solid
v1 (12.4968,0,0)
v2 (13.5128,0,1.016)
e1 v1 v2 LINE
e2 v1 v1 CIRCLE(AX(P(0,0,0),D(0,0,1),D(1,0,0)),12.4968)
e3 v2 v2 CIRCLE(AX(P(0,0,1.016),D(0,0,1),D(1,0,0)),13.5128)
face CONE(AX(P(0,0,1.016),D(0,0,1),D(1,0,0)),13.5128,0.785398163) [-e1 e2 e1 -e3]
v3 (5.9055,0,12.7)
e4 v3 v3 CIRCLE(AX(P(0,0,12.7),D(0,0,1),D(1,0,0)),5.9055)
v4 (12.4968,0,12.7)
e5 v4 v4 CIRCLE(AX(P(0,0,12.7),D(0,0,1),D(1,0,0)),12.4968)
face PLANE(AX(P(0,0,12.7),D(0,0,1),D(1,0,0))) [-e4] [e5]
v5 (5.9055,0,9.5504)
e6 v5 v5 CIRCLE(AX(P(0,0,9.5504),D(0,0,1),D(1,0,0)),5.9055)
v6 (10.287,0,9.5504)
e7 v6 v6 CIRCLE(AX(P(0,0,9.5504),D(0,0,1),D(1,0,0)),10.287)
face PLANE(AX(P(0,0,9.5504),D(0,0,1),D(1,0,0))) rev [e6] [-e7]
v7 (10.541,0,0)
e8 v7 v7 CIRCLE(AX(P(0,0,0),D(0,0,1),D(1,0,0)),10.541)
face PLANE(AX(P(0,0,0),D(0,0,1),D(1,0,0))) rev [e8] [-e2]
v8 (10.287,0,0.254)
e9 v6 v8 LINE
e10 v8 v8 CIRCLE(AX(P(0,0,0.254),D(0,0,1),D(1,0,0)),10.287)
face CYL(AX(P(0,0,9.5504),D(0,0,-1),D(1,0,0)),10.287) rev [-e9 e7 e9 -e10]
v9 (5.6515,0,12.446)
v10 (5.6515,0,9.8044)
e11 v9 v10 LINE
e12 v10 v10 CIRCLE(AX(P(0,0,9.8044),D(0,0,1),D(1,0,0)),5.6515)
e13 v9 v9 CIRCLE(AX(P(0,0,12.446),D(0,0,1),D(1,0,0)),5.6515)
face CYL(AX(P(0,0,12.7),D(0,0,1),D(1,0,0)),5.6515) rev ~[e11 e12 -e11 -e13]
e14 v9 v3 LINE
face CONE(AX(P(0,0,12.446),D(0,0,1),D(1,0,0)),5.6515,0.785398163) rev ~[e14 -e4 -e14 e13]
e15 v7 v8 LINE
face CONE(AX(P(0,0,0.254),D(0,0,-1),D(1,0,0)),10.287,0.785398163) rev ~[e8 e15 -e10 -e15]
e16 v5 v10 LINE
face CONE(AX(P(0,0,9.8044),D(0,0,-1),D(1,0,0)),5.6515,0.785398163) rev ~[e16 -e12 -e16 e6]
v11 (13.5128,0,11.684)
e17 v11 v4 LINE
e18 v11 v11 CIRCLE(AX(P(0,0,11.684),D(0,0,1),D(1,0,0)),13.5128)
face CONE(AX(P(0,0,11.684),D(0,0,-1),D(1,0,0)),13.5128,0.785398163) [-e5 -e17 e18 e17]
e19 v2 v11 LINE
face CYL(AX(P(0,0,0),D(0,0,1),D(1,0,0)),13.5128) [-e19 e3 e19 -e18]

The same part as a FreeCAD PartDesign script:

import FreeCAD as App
import Part
import Sketcher
Q = App.Units.Quantity


def edges_at(feature, points):
    """Names of the edges that pass closest to the given points."""
    edges = feature.Shape.Edges
    near = lambda p: min(range(len(edges)), key=lambda i: edges[i].distToShape(Part.Vertex(*p))[0])
    return sorted({f"Edge{near(p) + 1}" for p in points})

doc = App.newDocument("Part")
body = doc.addObject("PartDesign::Body", "Body")

# Sketch on XZ plane
sketch1 = doc.addObject("Sketcher::SketchObject", "Sketch")
body.addObject(sketch1)
sketch1.AttachmentSupport = (doc.XZ_Plane, [""])
sketch1.MapMode = "FlatFace"
sketch1.addGeometry(Part.LineSegment(App.Vector(10.287, 9.5504, 0), App.Vector(10.287, 0, 0)), False)
sketch1.addGeometry(Part.LineSegment(App.Vector(10.287, 0, 0), App.Vector(13.5128, 0, 0)), False)
sketch1.addGeometry(Part.LineSegment(App.Vector(13.5128, 0, 0), App.Vector(13.5128, 12.7, 0)), False)
sketch1.addGeometry(Part.LineSegment(App.Vector(13.5128, 12.7, 0), App.Vector(0, 12.7, 0)), False)
sketch1.addGeometry(Part.LineSegment(App.Vector(0, 12.7, 0), App.Vector(0, 9.5504, 0)), False)
sketch1.addGeometry(Part.LineSegment(App.Vector(0, 9.5504, 0), App.Vector(10.287, 9.5504, 0)), False)
sketch1.addConstraint(Sketcher.Constraint("Coincident", 0, 2, 1, 1))
sketch1.addConstraint(Sketcher.Constraint("Coincident", 1, 2, 2, 1))
sketch1.addConstraint(Sketcher.Constraint("Coincident", 2, 2, 3, 1))
sketch1.addConstraint(Sketcher.Constraint("Coincident", 3, 2, 4, 1))
sketch1.addConstraint(Sketcher.Constraint("Coincident", 4, 2, 5, 1))
sketch1.addConstraint(Sketcher.Constraint("Coincident", 5, 2, 0, 1))
sketch1.addConstraint(Sketcher.Constraint("Vertical", 0))
sketch1.addConstraint(Sketcher.Constraint("Horizontal", 1))
sketch1.addConstraint(Sketcher.Constraint("Vertical", 2))
sketch1.addConstraint(Sketcher.Constraint("Horizontal", 3))
sketch1.addConstraint(Sketcher.Constraint("Vertical", 4))
sketch1.addConstraint(Sketcher.Constraint("Horizontal", 5))
sketch1.addConstraint(Sketcher.Constraint("PointOnObject", 0, 2, -1))
sketch1.addConstraint(Sketcher.Constraint("PointOnObject", 3, 2, -2))
sketch1.addConstraint(Sketcher.Constraint("DistanceY", 2, 1, 2, 2, Q("0.5 in")))
sketch1.addConstraint(Sketcher.Constraint("DistanceX", 1, 1, 1, 2, Q("0.127 in")))
sketch1.addConstraint(Sketcher.Constraint("DistanceX", 3, 2, 3, 1, Q("0.532 in")))
sketch1.addConstraint(Sketcher.Constraint("DistanceY", 0, 2, 0, 1, Q("0.376 in")))
revolution = doc.addObject("PartDesign::Revolution", "Revolution")
body.addObject(revolution)
revolution.Profile = sketch1
revolution.ReferenceAxis = (sketch1, ["V_Axis"])
revolution.Angle = 360
doc.recompute()

chamfer = doc.addObject("PartDesign::Chamfer", "Chamfer")
body.addObject(chamfer)
chamfer.Base = (revolution, edges_at(revolution, [(-13.513, 0, 12.7), (-13.513, 0, 0)]))
chamfer.Size = Q("0.04 in")

# Sketch on XY plane
sketch2 = doc.addObject("Sketcher::SketchObject", "Sketch001")
body.addObject(sketch2)
sketch2.AttachmentSupport = (doc.XY_Plane, [""])
sketch2.MapMode = "FlatFace"
sketch2.AttachmentOffset = App.Placement(App.Vector(0, 0, 0.5 * 25.4), App.Rotation())
sketch2.addGeometry(Part.Circle(App.Vector(0, 0, 0), App.Vector(0, 0, 1), 5.6515), False)
sketch2.addConstraint(Sketcher.Constraint("Coincident", 0, 3, -1, 1))
sketch2.addConstraint(Sketcher.Constraint("Diameter", 0, Q("0.445 in")))
pocket1 = doc.addObject("PartDesign::Pocket", "Pocket")
body.addObject(pocket1)
pocket1.Profile = sketch2
pocket1.Length = Q("1 in")
doc.recompute()

chamfer2 = doc.addObject("PartDesign::Chamfer", "Chamfer001")
body.addObject(chamfer2)
chamfer2.Base = (pocket1, edges_at(pocket1, [(-5.652, 0, 12.7), (-5.652, 0, 9.55), (-10.287, 0, 0)]))
chamfer2.Size = Q("0.01 in")

doc.recompute()
